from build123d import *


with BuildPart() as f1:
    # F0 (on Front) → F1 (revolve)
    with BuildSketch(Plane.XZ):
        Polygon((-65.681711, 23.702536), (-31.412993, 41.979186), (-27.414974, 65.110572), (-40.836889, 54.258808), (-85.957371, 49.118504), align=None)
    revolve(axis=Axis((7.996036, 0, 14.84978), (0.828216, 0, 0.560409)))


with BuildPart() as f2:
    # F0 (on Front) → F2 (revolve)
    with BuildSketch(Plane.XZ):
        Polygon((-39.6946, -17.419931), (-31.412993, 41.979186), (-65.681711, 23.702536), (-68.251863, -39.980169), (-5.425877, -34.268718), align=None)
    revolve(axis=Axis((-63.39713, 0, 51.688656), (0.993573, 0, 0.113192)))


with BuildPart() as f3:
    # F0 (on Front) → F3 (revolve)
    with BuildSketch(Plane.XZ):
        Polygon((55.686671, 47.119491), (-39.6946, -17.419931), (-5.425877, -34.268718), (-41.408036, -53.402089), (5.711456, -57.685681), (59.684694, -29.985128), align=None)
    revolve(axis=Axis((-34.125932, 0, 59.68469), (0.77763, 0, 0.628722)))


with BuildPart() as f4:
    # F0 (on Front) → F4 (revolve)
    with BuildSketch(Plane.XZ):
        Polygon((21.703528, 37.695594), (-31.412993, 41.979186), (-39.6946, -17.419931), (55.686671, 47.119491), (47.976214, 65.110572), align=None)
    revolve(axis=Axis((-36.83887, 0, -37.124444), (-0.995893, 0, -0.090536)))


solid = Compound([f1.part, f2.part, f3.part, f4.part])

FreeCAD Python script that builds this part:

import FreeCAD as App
import Part
import Sketcher
from FreeCAD import Vector


def add_polygon(sketch, points):
    """Adds a closed chain of lines whose ends are joined by coincident constraints."""
    first, n = sketch.GeometryCount, len(points)
    for a, b in zip(points, points[1:] + points[:1]):
        sketch.addGeometry(Part.LineSegment(App.Vector(*a, 0), App.Vector(*b, 0)), False)
    for i in range(n):
        sketch.addConstraint(Sketcher.Constraint("Coincident", first + i, 2, first + (i + 1) % n, 1))

doc = App.newDocument("Part")
body = doc.addObject("PartDesign::Body", "Body")

# Sketch on XZ plane
sketch1 = body.newObject("Sketcher::SketchObject", "Sketch")
sketch1.AttachmentSupport = (doc.getObject("XZ_Plane"), [""])
sketch1.MapMode = "FlatFace"
add_polygon(sketch1, [(-66, 24), (-31, 42), (-27, 65), (-41, 54), (-86, 49)])  # lines 0-4
sketch1.addGeometry(Part.LineSegment(Vector(-41, -18, 0), Vector(7, 14, 0)), True)  # axis
sketch1.addConstraint([
    Sketcher.Constraint("Distance", 0, 38.837881),
    Sketcher.Constraint("Distance", 1, 23.474351),
    Sketcher.Constraint("Distance", 2, 17.260029),
    Sketcher.Constraint("Distance", 3, 45.41234),
    Sketcher.Constraint("Distance", 4, 32.512672),
    Sketcher.Constraint("Distance", 5, 57.447849),
    Sketcher.Constraint("DistanceX", 2, 2, -1, 1, 40.836889),
    Sketcher.Constraint("DistanceY", -1, 1, 2, 2, 54.258808),
    Sketcher.Constraint("DistanceX", 3, 2, -1, 1, 85.957371),
    Sketcher.Constraint("DistanceX", 4, 2, -1, 1, 65.681711),
    Sketcher.Constraint("DistanceY", 5, 1, -1, 1, 17.995351),
    Sketcher.Constraint("DistanceY", -1, 1, 5, 2, 14.198941),
    Sketcher.Constraint("DistanceX", 0, 2, 1, 2, 3.998019),
    Sketcher.Constraint("DistanceX", 4, 2, 5, 1, 25.136658),
])
revolution = body.newObject("PartDesign::Revolution", "Revolution")
revolution.Profile = sketch1
revolution.ReferenceAxis = (sketch1, ["Axis0"])
revolution.Angle = 360
body2 = doc.addObject("PartDesign::Body", "Body001")

# Sketch on XZ plane
sketch2 = body2.newObject("Sketcher::SketchObject", "Sketch001")
sketch2.AttachmentSupport = (doc.getObject("XZ_Plane001"), [""])
sketch2.MapMode = "FlatFace"
add_polygon(sketch2, [(-40, -17), (-31, 42), (-66, 24), (-68, -40), (-5, -34)])  # lines 0-4
sketch2.addGeometry(Part.LineSegment(Vector(-78, 50, 0), Vector(-16, 57, 0)), True)  # axis
sketch2.addConstraint([
    Sketcher.Constraint("DistanceX", 4, 2, -1, 1, 39.6946),
    Sketcher.Constraint("DistanceY", 4, 2, 5, 1, 67.388101),
    Sketcher.Constraint("Distance", 0, 59.973662),
    Sketcher.Constraint("Distance", 1, 38.837881),
    Sketcher.Constraint("Distance", 4, 38.186739),
    Sketcher.Constraint("DistanceX", 1, 2, -1, 1, 65.681711),
    Sketcher.Constraint("DistanceY", 2, 2, -1, 1, 39.980169),
    Sketcher.Constraint("DistanceY", 4, 2, -1, 1, 17.419931),
    Sketcher.Constraint("DistanceX", 1, 2, 0, 2, 34.268718),
    Sketcher.Constraint("DistanceX", 2, 2, 1, 2, 2.570152),
    Sketcher.Constraint("DistanceY", 2, 2, 3, 2, 5.711451),
    Sketcher.Constraint("DistanceX", 5, 1, 0, 2, 47.086162),
    Sketcher.Constraint("DistanceX", 5, 1, 5, 2, 62.663368),
    Sketcher.Constraint("DistanceY", 3, 2, 5, 2, 91.375762),
])
revolution2 = body2.newObject("PartDesign::Revolution", "Revolution001")
revolution2.Profile = sketch2
revolution2.ReferenceAxis = (sketch2, ["Axis0"])
revolution2.Angle = 360
body3 = doc.addObject("PartDesign::Body", "Body002")

# Sketch on XZ plane
sketch3 = body3.newObject("Sketcher::SketchObject", "Sketch002")
sketch3.AttachmentSupport = (doc.getObject("XZ_Plane002"), [""])
sketch3.MapMode = "FlatFace"
add_polygon(sketch3, [(56, 47), (-40, -17), (-5, -34), (-41, -53), (6, -58), (60, -30)])  # lines 0-5
sketch3.addGeometry(Part.LineSegment(Vector(-94, 11, 0), Vector(14, 99, 0)), True)  # axis
sketch3.addConstraint([
    Sketcher.Constraint("Distance", 3, 47.3138),
    Sketcher.Constraint("Distance", 6, 138.703902),
    Sketcher.Constraint("DistanceX", 0, 2, -1, 1, 39.6946),
    Sketcher.Constraint("DistanceX", 6, 1, -1, 1, 93.819102),
    Sketcher.Constraint("Distance", 0, 115.164768),
    Sketcher.Constraint("Distance", 1, 38.186739),
    Sketcher.Constraint("DistanceY", 0, 2, -1, 1, 17.419931),
    Sketcher.Constraint("DistanceY", 2, 2, -1, 1, 53.402089),
    Sketcher.Constraint("DistanceY", 3, 2, -1, 1, 57.685681),
    Sketcher.Constraint("DistanceX", -1, 1, 5, 2, 55.686671),
    Sketcher.Constraint("DistanceY", -1, 1, 6, 2, 98.628342),
    Sketcher.Constraint("DistanceX", 2, 2, 1, 2, 35.982159),
    Sketcher.Constraint("DistanceY", 2, 2, 1, 2, 19.133371),
    Sketcher.Constraint("DistanceX", 3, 2, 4, 2, 53.973238),
    Sketcher.Constraint("DistanceY", 1, 2, 4, 2, 4.28359),
    Sketcher.Constraint("DistanceY", 0, 2, 6, 1, 28.842068),
])
revolution3 = body3.newObject("PartDesign::Revolution", "Revolution002")
revolution3.Profile = sketch3
revolution3.ReferenceAxis = (sketch3, ["Axis0"])
revolution3.Angle = 360
body4 = doc.addObject("PartDesign::Body", "Body003")

# Sketch on XZ plane
sketch4 = body4.newObject("Sketcher::SketchObject", "Sketch003")
sketch4.AttachmentSupport = (doc.getObject("XZ_Plane003"), [""])
sketch4.MapMode = "FlatFace"
add_polygon(sketch4, [(22, 38), (-31, 42), (-40, -17), (56, 47), (48, 65)])  # lines 0-4
sketch4.addGeometry(Part.LineSegment(Vector(63, -28, 0), Vector(-38, -37, 0)), True)  # axis
sketch4.addConstraint([
    Sketcher.Constraint("Distance", 5, 100.8327),
    Sketcher.Constraint("DistanceX", 1, 2, -1, 1, 39.6946),
    Sketcher.Constraint("DistanceY", 5, 2, 0, 2, 79.199601),
    Sketcher.Constraint("DistanceX", 5, 2, 5, 1, 100.418598),
    Sketcher.Constraint("Distance", 1, 59.973662),
    Sketcher.Constraint("Distance", 2, 115.164768),
    Sketcher.Constraint("Distance", 3, 19.57371),
    Sketcher.Constraint("DistanceY", 1, 2, -1, 1, 17.419931),
    Sketcher.Constraint("DistanceX", -1, 1, 2, 2, 55.686671),
    Sketcher.Constraint("DistanceX", 5, 2, -1, 1, 37.894551),
    Sketcher.Constraint("DistanceY", 2, 2, 3, 2, 17.991081),
    Sketcher.Constraint("DistanceY", 4, 2, 3, 2, 27.414978),
    Sketcher.Constraint("DistanceX", 0, 2, 4, 2, 53.116521),
    Sketcher.Constraint("DistanceY", 4, 2, 0, 2, 4.283592),
])
revolution4 = body4.newObject("PartDesign::Revolution", "Revolution003")
revolution4.Profile = sketch4
revolution4.ReferenceAxis = (sketch4, ["Axis0"])
revolution4.Angle = 360

doc.recompute()
